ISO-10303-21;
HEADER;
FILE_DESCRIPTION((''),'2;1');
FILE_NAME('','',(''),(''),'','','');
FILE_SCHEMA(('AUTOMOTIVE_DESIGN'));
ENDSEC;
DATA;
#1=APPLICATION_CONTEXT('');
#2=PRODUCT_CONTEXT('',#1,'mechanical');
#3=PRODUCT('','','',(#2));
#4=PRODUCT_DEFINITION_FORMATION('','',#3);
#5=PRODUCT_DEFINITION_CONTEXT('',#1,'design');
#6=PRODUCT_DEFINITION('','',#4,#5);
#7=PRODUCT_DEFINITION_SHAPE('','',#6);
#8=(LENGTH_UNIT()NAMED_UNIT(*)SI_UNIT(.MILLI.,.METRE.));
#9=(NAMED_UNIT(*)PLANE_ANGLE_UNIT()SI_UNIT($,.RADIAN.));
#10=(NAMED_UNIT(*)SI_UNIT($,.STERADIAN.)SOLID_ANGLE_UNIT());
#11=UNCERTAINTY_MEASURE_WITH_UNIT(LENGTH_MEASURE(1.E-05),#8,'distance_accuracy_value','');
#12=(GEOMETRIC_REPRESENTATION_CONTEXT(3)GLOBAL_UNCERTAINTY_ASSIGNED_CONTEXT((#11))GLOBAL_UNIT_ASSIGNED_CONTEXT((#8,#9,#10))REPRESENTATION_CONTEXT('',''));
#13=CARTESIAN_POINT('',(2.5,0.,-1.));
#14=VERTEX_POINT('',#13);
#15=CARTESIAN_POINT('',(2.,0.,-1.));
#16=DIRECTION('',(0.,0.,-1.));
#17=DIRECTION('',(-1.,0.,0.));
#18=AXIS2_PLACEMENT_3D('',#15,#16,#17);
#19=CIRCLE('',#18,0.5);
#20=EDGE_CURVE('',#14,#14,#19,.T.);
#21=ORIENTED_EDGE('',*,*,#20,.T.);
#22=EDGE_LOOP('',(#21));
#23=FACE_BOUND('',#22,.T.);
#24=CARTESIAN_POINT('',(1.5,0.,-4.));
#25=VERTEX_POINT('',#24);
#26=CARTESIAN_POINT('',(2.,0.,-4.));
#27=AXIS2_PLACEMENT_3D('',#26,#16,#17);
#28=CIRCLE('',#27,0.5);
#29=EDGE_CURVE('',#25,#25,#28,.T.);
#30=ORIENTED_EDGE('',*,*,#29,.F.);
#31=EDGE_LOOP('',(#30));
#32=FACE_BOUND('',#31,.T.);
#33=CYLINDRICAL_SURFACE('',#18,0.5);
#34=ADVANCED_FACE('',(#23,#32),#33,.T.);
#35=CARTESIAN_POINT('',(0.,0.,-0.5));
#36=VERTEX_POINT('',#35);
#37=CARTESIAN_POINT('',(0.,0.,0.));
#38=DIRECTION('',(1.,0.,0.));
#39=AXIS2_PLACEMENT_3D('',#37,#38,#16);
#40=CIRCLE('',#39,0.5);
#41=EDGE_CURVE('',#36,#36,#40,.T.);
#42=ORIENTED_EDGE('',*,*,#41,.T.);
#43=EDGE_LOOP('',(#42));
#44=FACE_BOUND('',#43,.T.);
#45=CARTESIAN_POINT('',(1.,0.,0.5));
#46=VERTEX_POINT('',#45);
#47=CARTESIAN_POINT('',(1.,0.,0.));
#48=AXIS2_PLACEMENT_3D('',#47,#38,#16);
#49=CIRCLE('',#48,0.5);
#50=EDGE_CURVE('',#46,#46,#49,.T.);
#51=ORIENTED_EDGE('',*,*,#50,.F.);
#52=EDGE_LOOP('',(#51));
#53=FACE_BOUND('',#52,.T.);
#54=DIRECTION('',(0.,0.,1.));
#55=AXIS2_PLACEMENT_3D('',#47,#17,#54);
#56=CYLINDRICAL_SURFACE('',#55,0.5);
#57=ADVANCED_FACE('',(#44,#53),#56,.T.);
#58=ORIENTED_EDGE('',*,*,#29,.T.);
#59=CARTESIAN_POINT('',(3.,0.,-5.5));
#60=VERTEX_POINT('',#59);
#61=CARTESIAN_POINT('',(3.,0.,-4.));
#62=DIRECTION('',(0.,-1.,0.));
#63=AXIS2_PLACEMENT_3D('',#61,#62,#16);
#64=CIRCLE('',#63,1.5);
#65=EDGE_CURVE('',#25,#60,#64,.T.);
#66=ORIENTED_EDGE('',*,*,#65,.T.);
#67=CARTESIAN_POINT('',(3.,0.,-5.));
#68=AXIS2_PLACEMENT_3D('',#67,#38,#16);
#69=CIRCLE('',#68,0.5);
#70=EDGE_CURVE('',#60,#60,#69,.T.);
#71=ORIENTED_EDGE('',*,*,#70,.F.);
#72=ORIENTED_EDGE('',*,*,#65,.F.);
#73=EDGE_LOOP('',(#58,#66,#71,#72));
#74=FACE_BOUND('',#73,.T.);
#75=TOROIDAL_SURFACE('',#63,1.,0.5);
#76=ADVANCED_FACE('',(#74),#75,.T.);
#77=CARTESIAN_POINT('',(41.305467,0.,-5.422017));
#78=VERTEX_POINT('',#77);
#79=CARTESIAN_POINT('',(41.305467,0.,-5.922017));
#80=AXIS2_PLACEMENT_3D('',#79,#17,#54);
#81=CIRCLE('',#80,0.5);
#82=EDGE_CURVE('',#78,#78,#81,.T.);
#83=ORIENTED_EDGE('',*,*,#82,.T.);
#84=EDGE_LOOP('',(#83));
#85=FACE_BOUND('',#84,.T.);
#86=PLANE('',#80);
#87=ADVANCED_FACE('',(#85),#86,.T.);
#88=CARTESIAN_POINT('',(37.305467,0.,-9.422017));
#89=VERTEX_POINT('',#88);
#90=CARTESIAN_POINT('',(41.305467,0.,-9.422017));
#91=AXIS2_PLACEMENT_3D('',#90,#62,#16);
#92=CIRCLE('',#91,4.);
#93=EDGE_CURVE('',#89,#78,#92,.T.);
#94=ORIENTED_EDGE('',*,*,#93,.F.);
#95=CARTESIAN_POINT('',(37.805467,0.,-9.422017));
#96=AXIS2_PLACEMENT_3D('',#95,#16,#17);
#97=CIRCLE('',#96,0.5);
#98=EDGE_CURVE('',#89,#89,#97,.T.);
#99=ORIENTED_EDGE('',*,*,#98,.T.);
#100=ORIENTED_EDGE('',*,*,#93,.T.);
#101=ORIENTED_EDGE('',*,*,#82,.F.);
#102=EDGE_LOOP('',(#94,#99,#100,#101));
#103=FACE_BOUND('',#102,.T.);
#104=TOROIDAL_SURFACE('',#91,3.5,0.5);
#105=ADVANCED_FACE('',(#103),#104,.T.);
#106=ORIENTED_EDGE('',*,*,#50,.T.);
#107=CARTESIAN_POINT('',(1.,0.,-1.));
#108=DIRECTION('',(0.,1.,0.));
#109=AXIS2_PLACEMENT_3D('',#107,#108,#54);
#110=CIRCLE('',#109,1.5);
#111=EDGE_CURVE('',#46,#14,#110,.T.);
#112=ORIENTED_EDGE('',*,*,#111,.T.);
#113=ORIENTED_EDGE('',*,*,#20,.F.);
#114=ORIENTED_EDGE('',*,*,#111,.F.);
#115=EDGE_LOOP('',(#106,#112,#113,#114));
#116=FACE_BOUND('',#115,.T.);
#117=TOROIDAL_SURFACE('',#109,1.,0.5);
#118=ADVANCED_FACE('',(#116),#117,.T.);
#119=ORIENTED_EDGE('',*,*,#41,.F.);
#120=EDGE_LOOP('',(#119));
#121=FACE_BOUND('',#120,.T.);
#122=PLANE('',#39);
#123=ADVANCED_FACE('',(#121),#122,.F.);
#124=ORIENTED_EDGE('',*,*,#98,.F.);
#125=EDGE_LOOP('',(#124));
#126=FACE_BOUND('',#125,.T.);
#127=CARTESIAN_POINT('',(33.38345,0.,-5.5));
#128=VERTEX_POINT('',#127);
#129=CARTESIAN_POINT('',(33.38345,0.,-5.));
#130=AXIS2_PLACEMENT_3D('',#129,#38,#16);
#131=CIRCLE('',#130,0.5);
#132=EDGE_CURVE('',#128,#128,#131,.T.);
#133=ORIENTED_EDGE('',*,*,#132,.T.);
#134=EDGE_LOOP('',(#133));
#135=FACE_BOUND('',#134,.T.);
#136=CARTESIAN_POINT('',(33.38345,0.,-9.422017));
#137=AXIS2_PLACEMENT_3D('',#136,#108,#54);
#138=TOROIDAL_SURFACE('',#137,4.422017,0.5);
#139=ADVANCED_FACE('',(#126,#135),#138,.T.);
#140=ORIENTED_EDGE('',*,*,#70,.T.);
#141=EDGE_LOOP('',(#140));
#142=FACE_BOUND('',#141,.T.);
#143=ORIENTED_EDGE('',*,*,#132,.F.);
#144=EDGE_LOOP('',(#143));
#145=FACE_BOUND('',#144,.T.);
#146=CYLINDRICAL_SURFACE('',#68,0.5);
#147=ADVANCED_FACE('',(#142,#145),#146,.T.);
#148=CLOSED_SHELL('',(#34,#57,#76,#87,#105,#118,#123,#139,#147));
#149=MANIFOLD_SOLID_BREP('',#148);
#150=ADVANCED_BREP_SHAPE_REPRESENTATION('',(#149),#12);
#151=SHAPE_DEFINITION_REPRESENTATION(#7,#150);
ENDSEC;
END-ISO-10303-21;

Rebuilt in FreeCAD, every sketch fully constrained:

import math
import FreeCAD as App
import Part
import Sketcher

V = App.Vector
Q = App.Units.Quantity

doc = App.newDocument("Part")
body = doc.addObject("PartDesign::Body", "Body")

# Sketch on YZ plane
sketch1 = body.newObject("Sketcher::SketchObject", "Sketch")
sketch1.AttachmentSupport = (doc.getObject("YZ_Plane"), [""])
sketch1.MapMode = "FlatFace"
sketch1.addGeometry(Part.Circle(V(0, 0, 0), V(0, 0, 1), 0.5), False)
sketch1.addConstraint([
    Sketcher.Constraint("Coincident", 0, 3, -1, 1),
    Sketcher.Constraint("Diameter", 0, Q("1 mm")),
])

# Sketch on XZ plane
sketch2 = body.newObject("Sketcher::SketchObject", "Sketch001")
sketch2.AttachmentSupport = (doc.getObject("XZ_Plane"), [""])
sketch2.MapMode = "FlatFace"
sketch2.addGeometry([
    Part.LineSegment(V(0, 0, 0), V(1, 0, 0)),  # 0
    Part.ArcOfCircle(Part.Circle(V(1, -1, 0), V(0, 0, 1), 1), math.radians(0), math.radians(90)),  # 1
    Part.LineSegment(V(2, -1, 0), V(2, -4, 0)),  # 2
    Part.ArcOfCircle(Part.Circle(V(3, -4, 0), V(0, 0, 1), 1), math.radians(-180), math.radians(-90)),  # 3
    Part.LineSegment(V(3, -5, 0), V(33.4, -5, 0)),  # 4
    Part.ArcOfCircle(Part.Circle(V(33.4, -9.4, 0), V(0, 0, 1), 4.4), math.radians(0), math.radians(90)),  # 5
    Part.ArcOfCircle(Part.Circle(V(41.3, -9.4, 0), V(0, 0, 1), 3.5), math.radians(180), math.radians(450)),  # 6
], False)
sketch2.addConstraint([
    Sketcher.Constraint("Tangent", 0, 2, 1, 2),
    Sketcher.Constraint("Tangent", 1, 1, 2, 1),
    Sketcher.Constraint("Tangent", 2, 2, 3, 1),
    Sketcher.Constraint("Tangent", 3, 2, 4, 1),
    Sketcher.Constraint("Tangent", 4, 2, 5, 2),
    Sketcher.Constraint("Tangent", 5, 1, 6, 1),
    Sketcher.Constraint("Horizontal", 0),
    Sketcher.Constraint("Vertical", 2),
    Sketcher.Constraint("Horizontal", 4),
    Sketcher.Constraint("Coincident", 0, 1, -1, 1),
    Sketcher.Constraint("Equal", 1, 3),
    Sketcher.Constraint("Horizontal", 5, 3, 6, 3),
    Sketcher.Constraint("Radius", 1, Q("1 mm")),
    Sketcher.Constraint("Radius", 6, Q("3.5 mm")),
    Sketcher.Constraint("DistanceX", 0, 1, 0, 2, Q("1 mm")),
    Sketcher.Constraint("DistanceY", 2, 2, 2, 1, Q("3 mm")),
    Sketcher.Constraint("DistanceX", 5, 1, 6, 2, Q("3.5 mm")),
    Sketcher.Constraint("Radius", 5, Q("4.422017 mm")),
    Sketcher.Constraint("DistanceX", 4, 1, 4, 2, Q("30.38345 mm")),
])
doc.recompute()

additivepipe = body.newObject("PartDesign::AdditivePipe", "AdditivePipe")
additivepipe.Profile = sketch1
additivepipe.Spine = (sketch2, ["Edge1", "Edge2", "Edge3", "Edge4", "Edge5", "Edge6", "Edge7"])

doc.recompute()
